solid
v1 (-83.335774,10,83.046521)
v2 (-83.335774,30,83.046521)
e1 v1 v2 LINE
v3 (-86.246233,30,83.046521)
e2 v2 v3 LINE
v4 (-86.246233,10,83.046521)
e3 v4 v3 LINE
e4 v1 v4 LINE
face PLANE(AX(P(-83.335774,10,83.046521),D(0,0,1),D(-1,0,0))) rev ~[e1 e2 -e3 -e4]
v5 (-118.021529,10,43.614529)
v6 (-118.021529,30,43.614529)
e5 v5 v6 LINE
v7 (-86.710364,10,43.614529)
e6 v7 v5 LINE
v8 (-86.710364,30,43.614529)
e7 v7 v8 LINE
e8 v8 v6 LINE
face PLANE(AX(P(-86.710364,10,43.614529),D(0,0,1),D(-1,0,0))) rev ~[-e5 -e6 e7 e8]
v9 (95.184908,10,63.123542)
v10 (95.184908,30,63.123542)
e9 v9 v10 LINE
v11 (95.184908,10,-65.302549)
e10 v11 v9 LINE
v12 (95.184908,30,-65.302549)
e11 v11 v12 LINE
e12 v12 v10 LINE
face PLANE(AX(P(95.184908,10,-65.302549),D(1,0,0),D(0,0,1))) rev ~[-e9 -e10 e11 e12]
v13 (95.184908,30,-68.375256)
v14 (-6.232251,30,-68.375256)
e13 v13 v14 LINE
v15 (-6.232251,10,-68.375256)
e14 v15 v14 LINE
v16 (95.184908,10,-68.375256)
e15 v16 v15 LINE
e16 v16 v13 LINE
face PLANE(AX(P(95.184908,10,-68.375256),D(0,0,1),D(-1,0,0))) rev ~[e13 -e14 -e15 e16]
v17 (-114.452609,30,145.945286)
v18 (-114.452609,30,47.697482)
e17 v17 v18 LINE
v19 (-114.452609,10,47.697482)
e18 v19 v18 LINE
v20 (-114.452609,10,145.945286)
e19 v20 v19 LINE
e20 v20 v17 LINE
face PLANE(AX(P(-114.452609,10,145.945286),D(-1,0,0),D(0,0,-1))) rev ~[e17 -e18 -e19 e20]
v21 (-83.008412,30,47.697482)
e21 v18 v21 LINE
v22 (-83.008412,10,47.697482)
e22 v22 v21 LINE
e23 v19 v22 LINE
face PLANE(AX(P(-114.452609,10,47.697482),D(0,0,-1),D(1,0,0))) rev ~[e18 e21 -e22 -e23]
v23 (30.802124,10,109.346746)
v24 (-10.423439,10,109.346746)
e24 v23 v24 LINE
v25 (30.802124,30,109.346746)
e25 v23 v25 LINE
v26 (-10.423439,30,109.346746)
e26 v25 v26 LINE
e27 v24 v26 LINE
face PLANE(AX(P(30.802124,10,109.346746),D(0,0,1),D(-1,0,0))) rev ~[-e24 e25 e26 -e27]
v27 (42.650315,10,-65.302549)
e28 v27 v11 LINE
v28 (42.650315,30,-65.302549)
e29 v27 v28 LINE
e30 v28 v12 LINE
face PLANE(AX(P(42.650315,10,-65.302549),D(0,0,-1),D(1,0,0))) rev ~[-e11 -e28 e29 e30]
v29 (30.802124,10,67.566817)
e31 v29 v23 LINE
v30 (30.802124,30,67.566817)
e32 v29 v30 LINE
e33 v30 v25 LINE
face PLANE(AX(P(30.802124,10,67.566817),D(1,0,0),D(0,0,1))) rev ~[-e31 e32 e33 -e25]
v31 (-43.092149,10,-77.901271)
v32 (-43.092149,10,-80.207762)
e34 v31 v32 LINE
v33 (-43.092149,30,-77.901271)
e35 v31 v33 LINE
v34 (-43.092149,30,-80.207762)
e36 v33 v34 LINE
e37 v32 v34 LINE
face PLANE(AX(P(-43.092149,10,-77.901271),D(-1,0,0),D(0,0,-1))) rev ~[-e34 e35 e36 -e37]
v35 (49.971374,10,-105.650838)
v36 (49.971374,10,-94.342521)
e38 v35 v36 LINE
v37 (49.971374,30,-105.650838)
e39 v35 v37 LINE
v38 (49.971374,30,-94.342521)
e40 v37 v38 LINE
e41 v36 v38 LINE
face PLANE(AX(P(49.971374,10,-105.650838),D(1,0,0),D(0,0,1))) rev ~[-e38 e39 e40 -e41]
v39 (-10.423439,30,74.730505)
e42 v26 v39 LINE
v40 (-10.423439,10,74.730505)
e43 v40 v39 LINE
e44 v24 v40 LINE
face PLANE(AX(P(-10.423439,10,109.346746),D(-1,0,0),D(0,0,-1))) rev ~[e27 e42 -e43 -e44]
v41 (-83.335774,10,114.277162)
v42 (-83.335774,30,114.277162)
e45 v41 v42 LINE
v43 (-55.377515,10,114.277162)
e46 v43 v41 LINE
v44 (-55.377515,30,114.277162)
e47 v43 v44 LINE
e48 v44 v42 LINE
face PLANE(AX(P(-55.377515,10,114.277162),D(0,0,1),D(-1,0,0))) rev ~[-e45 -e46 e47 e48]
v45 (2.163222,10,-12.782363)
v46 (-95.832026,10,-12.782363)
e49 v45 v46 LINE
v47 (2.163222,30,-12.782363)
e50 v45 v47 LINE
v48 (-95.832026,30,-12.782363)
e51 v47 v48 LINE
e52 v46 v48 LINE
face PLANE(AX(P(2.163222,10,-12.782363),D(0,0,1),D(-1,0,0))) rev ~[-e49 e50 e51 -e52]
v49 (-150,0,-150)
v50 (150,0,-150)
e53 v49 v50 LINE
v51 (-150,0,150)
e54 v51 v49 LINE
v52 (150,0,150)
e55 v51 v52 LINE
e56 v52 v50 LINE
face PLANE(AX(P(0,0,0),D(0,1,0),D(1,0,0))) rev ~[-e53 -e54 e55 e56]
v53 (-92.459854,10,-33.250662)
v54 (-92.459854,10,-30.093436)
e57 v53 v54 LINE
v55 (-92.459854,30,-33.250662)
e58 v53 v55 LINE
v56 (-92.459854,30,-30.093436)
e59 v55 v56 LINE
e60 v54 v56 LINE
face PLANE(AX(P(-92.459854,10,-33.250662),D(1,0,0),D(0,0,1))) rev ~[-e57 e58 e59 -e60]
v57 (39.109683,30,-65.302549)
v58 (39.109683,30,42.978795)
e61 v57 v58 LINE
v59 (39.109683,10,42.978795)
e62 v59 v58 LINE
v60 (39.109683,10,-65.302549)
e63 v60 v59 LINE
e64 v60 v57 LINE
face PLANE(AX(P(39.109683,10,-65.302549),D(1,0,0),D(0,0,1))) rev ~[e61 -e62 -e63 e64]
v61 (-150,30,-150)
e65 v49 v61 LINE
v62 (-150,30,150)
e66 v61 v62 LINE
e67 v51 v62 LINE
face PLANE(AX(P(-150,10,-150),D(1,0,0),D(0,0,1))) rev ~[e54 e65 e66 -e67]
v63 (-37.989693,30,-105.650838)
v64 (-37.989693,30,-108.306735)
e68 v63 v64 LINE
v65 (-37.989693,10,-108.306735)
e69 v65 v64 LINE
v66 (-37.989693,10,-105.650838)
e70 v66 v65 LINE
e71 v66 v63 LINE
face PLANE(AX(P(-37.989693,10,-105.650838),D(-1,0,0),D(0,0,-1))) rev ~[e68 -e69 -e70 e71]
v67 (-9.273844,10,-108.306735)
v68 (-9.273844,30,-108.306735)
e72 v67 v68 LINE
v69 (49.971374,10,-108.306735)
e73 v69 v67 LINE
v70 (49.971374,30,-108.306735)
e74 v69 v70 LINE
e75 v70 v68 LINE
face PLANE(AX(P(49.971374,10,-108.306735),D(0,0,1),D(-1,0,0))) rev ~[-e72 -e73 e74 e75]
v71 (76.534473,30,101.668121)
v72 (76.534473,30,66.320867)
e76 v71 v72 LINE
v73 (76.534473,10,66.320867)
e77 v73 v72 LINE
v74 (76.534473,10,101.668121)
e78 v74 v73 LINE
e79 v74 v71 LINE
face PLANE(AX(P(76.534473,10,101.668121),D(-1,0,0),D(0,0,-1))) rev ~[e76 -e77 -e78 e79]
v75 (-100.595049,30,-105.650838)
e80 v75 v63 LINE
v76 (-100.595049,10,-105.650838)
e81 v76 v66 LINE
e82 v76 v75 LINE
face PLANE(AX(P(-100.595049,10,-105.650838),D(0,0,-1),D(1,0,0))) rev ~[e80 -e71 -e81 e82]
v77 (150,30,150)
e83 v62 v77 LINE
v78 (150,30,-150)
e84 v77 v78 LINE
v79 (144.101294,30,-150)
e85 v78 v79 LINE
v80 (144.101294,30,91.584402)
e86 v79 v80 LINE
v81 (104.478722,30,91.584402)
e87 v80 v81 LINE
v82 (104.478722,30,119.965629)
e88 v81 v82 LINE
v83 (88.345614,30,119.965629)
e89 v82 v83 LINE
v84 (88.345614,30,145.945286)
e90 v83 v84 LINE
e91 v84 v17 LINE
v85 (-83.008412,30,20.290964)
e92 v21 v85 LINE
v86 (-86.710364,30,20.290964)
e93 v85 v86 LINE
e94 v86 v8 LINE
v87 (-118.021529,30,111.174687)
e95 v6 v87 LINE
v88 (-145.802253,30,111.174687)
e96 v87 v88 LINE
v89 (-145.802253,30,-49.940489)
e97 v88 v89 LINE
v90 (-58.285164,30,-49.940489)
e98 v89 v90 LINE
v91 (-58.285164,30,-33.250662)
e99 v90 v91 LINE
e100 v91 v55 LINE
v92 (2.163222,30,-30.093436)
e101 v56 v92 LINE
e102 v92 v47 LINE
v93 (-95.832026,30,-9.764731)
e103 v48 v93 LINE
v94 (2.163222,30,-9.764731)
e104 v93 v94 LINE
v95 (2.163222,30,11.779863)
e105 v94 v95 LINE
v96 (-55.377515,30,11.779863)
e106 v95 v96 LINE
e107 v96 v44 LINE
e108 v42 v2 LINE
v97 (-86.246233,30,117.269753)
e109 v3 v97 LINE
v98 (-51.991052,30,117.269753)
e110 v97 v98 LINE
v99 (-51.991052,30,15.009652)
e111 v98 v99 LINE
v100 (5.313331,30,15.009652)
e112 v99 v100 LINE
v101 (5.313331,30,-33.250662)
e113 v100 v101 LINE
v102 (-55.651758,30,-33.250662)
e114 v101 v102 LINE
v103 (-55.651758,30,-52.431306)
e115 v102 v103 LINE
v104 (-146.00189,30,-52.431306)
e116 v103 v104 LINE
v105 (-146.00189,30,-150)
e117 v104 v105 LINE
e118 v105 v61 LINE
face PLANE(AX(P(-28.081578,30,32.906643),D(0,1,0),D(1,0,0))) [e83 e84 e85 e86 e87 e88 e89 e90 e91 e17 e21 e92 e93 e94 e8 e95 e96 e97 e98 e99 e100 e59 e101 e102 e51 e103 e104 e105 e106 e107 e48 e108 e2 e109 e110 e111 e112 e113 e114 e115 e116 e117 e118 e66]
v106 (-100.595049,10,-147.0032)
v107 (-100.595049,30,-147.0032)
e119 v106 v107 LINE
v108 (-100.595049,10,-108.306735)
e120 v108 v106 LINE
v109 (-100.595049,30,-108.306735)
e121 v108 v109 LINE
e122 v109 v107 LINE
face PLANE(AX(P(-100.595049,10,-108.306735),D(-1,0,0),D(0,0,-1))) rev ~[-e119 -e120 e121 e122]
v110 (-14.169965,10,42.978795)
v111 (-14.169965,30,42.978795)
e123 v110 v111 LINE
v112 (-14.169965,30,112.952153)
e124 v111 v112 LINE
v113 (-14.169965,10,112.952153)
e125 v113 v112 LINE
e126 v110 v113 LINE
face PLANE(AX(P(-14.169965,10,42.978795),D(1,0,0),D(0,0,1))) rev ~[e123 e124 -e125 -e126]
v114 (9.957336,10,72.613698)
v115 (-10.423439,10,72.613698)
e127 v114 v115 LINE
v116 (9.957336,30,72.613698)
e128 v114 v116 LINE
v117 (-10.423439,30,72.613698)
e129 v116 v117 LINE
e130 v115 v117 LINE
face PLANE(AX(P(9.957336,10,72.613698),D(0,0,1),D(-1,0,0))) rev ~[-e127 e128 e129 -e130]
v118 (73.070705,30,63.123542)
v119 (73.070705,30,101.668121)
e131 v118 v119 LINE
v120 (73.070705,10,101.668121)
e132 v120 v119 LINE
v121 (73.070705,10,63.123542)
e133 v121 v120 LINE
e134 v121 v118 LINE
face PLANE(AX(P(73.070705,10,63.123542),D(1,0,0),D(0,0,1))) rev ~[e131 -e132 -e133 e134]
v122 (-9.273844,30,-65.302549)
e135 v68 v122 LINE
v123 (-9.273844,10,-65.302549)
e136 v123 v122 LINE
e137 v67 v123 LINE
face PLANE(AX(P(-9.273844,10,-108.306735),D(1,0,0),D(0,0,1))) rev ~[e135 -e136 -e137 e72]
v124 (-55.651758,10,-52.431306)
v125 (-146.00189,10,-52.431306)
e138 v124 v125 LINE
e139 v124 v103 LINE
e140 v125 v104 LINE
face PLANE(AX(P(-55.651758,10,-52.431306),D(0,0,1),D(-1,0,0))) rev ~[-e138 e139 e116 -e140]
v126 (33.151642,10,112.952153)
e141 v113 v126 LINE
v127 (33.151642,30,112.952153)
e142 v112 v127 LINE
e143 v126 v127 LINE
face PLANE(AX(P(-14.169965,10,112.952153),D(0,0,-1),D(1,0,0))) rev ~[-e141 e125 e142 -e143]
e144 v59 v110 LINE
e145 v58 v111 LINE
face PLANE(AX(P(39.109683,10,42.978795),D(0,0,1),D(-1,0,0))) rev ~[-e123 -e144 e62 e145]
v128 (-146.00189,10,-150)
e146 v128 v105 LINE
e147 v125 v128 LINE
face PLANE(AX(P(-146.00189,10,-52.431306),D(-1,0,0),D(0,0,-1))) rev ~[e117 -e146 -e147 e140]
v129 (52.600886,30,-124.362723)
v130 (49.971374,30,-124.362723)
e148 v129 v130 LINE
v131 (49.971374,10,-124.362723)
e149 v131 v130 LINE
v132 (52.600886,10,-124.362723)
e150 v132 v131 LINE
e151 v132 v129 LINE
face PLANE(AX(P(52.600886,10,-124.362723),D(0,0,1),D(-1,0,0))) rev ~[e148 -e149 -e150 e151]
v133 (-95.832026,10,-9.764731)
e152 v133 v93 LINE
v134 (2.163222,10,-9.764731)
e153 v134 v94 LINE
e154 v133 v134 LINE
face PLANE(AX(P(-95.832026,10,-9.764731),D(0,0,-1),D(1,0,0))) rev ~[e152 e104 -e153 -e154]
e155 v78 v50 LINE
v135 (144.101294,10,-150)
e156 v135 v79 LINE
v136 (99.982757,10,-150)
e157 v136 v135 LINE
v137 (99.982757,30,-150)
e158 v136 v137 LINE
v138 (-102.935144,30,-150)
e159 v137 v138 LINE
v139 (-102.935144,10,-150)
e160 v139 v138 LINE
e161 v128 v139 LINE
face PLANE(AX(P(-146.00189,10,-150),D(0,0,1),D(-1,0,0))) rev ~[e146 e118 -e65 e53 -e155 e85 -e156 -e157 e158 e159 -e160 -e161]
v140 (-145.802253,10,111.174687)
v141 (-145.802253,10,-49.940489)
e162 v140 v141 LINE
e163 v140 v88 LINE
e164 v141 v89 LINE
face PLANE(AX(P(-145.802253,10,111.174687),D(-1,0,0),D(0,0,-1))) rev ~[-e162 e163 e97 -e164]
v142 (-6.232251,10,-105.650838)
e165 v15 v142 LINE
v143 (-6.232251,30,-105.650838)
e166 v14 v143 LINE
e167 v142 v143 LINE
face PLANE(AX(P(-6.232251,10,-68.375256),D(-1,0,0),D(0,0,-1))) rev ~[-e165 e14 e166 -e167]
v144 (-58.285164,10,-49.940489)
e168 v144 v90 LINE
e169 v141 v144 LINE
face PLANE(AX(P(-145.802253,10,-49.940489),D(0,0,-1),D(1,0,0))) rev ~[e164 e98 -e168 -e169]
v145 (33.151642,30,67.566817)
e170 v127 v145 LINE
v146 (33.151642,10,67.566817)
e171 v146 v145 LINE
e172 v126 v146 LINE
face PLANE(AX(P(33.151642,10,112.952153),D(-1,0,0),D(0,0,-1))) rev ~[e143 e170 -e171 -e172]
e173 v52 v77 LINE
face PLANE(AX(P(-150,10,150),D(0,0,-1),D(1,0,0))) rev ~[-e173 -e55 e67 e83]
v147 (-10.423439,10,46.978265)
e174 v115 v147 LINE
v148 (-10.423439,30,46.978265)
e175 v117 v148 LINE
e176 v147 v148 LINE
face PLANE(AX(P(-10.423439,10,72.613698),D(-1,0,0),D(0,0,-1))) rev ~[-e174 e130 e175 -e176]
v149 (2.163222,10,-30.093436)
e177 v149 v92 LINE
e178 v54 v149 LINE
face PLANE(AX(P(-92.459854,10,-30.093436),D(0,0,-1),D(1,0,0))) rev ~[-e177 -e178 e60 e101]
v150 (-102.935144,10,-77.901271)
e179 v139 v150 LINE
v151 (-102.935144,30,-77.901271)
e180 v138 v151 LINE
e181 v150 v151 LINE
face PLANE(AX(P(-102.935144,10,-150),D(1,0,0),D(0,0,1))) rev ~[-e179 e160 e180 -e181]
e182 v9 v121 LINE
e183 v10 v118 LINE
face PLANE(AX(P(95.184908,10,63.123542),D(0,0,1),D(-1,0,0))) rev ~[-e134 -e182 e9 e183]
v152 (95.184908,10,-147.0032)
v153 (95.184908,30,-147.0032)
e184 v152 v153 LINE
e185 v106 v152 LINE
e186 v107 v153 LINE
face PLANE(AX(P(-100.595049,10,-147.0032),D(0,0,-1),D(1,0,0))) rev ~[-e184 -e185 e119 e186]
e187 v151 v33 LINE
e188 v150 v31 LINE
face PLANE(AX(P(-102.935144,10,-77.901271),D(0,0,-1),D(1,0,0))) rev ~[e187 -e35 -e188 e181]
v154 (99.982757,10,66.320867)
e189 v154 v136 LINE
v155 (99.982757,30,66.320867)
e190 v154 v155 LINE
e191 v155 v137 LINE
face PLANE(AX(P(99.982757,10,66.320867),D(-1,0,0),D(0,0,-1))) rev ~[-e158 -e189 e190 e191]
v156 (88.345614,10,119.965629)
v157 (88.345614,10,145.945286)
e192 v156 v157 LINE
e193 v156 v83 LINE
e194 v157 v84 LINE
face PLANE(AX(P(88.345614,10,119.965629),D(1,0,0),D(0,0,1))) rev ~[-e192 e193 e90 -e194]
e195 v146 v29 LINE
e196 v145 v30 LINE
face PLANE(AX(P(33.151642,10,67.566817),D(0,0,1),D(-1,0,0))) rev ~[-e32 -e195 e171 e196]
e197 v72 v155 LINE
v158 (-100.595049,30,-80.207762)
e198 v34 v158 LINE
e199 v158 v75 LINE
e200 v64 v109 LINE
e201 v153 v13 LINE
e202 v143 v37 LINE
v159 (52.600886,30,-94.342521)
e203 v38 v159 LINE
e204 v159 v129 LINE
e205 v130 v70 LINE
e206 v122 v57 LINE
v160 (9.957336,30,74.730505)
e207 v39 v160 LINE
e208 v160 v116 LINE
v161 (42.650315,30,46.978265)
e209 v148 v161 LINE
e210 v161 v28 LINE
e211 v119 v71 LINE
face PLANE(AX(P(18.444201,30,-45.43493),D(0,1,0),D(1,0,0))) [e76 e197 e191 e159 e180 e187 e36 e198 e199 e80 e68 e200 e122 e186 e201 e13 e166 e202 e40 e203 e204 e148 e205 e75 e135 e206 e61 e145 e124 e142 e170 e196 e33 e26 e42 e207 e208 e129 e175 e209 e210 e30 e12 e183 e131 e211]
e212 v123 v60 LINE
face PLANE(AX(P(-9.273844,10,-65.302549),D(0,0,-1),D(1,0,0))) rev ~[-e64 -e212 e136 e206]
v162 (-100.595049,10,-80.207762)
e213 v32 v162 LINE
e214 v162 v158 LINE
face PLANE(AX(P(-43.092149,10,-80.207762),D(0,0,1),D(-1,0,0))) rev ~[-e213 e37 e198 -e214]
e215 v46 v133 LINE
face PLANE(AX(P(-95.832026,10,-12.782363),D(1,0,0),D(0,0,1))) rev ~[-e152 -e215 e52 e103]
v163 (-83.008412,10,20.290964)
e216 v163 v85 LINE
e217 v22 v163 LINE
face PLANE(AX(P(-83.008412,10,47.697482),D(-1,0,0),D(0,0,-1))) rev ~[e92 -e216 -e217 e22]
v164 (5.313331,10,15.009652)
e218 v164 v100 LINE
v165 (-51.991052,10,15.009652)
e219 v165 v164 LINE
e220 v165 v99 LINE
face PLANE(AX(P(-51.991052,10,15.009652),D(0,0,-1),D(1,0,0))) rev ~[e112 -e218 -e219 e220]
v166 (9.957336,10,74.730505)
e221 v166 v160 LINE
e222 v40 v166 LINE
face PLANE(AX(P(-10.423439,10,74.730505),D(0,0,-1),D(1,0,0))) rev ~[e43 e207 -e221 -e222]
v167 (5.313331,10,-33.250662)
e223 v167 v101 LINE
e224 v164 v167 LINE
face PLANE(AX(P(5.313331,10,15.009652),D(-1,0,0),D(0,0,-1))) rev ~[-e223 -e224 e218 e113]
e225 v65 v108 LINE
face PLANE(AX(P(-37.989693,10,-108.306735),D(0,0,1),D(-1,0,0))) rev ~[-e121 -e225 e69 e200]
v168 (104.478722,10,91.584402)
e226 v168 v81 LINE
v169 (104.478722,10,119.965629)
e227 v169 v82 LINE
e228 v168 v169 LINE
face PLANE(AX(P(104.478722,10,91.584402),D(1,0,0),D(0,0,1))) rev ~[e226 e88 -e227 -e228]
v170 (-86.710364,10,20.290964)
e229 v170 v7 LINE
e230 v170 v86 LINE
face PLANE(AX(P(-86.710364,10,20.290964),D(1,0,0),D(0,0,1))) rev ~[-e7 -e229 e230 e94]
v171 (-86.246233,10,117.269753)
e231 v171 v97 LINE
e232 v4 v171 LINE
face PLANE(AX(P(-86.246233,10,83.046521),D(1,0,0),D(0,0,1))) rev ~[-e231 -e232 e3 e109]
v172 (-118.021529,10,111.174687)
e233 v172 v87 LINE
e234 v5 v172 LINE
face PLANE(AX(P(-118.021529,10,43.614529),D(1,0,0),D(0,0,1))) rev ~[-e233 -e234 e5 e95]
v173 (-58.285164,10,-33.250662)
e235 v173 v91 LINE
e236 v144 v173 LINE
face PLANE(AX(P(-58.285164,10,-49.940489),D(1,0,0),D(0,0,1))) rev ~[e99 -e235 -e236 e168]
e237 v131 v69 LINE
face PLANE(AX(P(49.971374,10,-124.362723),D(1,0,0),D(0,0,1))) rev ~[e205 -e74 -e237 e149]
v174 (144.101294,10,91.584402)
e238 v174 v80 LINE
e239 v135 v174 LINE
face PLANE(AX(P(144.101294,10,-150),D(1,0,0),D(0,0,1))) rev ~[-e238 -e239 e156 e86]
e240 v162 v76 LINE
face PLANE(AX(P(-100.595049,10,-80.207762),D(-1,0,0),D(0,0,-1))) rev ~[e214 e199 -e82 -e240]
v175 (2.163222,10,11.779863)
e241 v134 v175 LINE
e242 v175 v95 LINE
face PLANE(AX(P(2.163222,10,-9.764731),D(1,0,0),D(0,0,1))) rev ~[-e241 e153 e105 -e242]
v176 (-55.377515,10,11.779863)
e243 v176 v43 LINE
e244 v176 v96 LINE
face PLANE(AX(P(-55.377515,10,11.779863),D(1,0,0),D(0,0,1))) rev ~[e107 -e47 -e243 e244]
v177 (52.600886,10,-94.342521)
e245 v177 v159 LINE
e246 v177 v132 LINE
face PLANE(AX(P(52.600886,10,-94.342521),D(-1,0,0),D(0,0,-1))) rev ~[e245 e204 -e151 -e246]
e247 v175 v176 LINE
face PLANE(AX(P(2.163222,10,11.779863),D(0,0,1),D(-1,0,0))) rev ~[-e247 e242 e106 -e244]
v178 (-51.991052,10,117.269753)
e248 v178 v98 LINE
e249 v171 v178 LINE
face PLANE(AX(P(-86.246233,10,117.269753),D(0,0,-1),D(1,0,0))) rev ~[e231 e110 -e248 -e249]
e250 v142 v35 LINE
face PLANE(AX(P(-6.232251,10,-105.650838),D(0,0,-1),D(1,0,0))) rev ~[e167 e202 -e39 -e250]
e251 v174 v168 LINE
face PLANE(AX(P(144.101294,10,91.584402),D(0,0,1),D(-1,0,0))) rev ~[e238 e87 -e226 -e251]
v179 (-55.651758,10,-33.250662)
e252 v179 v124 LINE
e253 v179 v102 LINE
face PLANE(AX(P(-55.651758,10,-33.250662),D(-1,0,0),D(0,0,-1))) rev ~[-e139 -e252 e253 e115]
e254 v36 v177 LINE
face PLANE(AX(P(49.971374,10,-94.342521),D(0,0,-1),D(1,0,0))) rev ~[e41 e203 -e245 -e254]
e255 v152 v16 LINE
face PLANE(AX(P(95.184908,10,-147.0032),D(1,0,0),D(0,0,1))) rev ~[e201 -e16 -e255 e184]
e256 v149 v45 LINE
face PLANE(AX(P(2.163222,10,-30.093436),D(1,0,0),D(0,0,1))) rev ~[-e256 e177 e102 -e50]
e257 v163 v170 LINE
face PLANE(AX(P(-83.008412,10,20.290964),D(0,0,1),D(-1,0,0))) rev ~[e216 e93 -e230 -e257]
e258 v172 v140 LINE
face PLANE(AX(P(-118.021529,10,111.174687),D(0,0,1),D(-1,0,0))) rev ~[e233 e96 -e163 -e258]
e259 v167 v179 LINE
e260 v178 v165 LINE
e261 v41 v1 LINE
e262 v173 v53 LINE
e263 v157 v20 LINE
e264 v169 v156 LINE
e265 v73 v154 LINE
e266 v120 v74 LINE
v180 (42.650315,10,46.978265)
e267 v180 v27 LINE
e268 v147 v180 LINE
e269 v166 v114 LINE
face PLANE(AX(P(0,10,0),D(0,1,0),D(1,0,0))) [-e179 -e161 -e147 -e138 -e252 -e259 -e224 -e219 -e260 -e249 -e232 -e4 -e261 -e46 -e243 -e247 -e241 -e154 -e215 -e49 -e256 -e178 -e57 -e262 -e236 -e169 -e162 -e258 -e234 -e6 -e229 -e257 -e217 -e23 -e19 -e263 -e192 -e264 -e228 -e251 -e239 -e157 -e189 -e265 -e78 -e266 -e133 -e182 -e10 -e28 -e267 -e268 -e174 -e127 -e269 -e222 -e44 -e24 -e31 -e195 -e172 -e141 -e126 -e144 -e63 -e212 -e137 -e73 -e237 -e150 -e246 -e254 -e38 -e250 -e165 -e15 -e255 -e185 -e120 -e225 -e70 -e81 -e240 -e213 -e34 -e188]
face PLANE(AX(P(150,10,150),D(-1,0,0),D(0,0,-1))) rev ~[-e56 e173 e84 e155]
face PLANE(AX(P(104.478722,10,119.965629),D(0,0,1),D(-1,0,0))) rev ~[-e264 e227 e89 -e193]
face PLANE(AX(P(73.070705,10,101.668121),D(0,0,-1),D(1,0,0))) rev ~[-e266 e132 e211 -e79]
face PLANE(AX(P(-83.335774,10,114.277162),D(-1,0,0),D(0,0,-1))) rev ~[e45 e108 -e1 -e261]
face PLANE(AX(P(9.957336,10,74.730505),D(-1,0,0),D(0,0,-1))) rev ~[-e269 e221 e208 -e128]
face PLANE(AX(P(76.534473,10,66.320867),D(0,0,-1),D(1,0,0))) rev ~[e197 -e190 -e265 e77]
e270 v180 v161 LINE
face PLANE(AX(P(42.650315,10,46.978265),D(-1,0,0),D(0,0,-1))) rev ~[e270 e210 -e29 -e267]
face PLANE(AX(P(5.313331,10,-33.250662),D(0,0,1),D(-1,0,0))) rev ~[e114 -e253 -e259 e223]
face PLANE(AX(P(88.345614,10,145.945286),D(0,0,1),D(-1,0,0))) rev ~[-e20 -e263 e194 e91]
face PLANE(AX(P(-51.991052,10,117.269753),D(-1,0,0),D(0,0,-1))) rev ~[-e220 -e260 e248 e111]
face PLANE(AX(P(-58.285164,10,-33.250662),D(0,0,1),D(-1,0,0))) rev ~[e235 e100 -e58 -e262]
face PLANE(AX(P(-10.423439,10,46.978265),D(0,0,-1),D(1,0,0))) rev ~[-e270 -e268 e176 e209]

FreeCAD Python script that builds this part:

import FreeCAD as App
import Part
import Sketcher
Q = App.Units.Quantity

doc = App.newDocument("Part")
params = doc.addObject("Spreadsheet::Sheet", "Params")
for row, (alias, value) in enumerate([
    ("sketch1_width", "300 mm"),
    ("pad1_length", "10 mm"),
    ("sketch2_width", "300 mm"),
    ("pad2_length", "20 mm"),
], start=1):
    params.set(f"A{row}", alias)
    params.set(f"B{row}", "=" + value)
    params.setAlias(f"B{row}", alias)

body = doc.addObject("PartDesign::Body", "Body")

# Sketch on XZ plane
sketch1 = body.newObject("Sketcher::SketchObject", "Sketch")
sketch1.AttachmentSupport = (doc.getObject("XZ_Plane"), [""])
sketch1.MapMode = "FlatFace"
sketch1.addGeometry(Part.LineSegment(App.Vector(-150, -150, 0), App.Vector(-150, 150, 0)), False)
sketch1.addGeometry(Part.LineSegment(App.Vector(-150, 150, 0), App.Vector(150, 150, 0)), False)
sketch1.addGeometry(Part.LineSegment(App.Vector(150, 150, 0), App.Vector(150, -150, 0)), False)
sketch1.addGeometry(Part.LineSegment(App.Vector(150, -150, 0), App.Vector(-150, -150, 0)), False)
sketch1.addConstraint(Sketcher.Constraint("Coincident", 0, 2, 1, 1))
sketch1.addConstraint(Sketcher.Constraint("Coincident", 1, 2, 2, 1))
sketch1.addConstraint(Sketcher.Constraint("Coincident", 2, 2, 3, 1))
sketch1.addConstraint(Sketcher.Constraint("Coincident", 3, 2, 0, 1))
sketch1.addConstraint(Sketcher.Constraint("Vertical", 0))
sketch1.addConstraint(Sketcher.Constraint("Horizontal", 1))
sketch1.addConstraint(Sketcher.Constraint("Vertical", 2))
sketch1.addConstraint(Sketcher.Constraint("Horizontal", 3))
sketch1.addConstraint(Sketcher.Constraint("Symmetric", 0, 2, 2, 2, -1, 1))
sketch1.addConstraint(Sketcher.Constraint("Equal", 3, 0))
sketch1.addConstraint(Sketcher.Constraint("DistanceX", 1, 1, 1, 2, Q("300 mm")))
sketch1.setExpression("Constraints[10]", "Params.sketch1_width")
pad1 = body.newObject("PartDesign::Pad", "Pad")
pad1.Profile = sketch1
pad1.setExpression("Length", "Params.pad1_length")
pad1.Reversed = True

# Sketch on XZ plane
sketch2 = body.newObject("Sketcher::SketchObject", "Sketch001")
sketch2.AttachmentSupport = (doc.getObject("XZ_Plane"), [""])
sketch2.MapMode = "FlatFace"
sketch2.AttachmentOffset = App.Placement(App.Vector(0, 0, -10), App.Rotation())
sketch2.addGeometry(Part.LineSegment(App.Vector(50, -108.3, 0), App.Vector(-9.3, -108.3, 0)), False)
sketch2.addGeometry(Part.LineSegment(App.Vector(-9.3, -108.3, 0), App.Vector(-9.3, -65.3, 0)), False)
sketch2.addGeometry(Part.LineSegment(App.Vector(-9.3, -65.3, 0), App.Vector(39.1, -65.3, 0)), False)
sketch2.addGeometry(Part.LineSegment(App.Vector(39.1, -65.3, 0), App.Vector(39.1, 43, 0)), False)
sketch2.addGeometry(Part.LineSegment(App.Vector(39.1, 43, 0), App.Vector(-14.2, 43, 0)), False)
sketch2.addGeometry(Part.LineSegment(App.Vector(-14.2, 43, 0), App.Vector(-14.2, 113, 0)), False)
sketch2.addGeometry(Part.LineSegment(App.Vector(-14.2, 113, 0), App.Vector(33.2, 113, 0)), False)
sketch2.addGeometry(Part.LineSegment(App.Vector(33.2, 113, 0), App.Vector(33.2, 67.6, 0)), False)
sketch2.addGeometry(Part.LineSegment(App.Vector(33.2, 67.6, 0), App.Vector(30.8, 67.6, 0)), False)
sketch2.addGeometry(Part.LineSegment(App.Vector(30.8, 67.6, 0), App.Vector(30.8, 109.3, 0)), False)
sketch2.addGeometry(Part.LineSegment(App.Vector(30.8, 109.3, 0), App.Vector(-10.4, 109.3, 0)), False)
sketch2.addGeometry(Part.LineSegment(App.Vector(-10.4, 109.3, 0), App.Vector(-10.4, 74.7, 0)), False)
sketch2.addGeometry(Part.LineSegment(App.Vector(-10.4, 74.7, 0), App.Vector(10, 74.7, 0)), False)
sketch2.addGeometry(Part.LineSegment(App.Vector(10, 74.7, 0), App.Vector(10, 72.6, 0)), False)
sketch2.addGeometry(Part.LineSegment(App.Vector(10, 72.6, 0), App.Vector(-10.4, 72.6, 0)), False)
sketch2.addGeometry(Part.LineSegment(App.Vector(-10.4, 72.6, 0), App.Vector(-10.4, 47, 0)), False)
sketch2.addGeometry(Part.LineSegment(App.Vector(-10.4, 47, 0), App.Vector(42.7, 47, 0)), False)
sketch2.addGeometry(Part.LineSegment(App.Vector(42.7, 47, 0), App.Vector(42.7, -65.3, 0)), False)
sketch2.addGeometry(Part.LineSegment(App.Vector(42.7, -65.3, 0), App.Vector(95.2, -65.3, 0)), False)
sketch2.addGeometry(Part.LineSegment(App.Vector(95.2, -65.3, 0), App.Vector(95.2, 63.1, 0)), False)
sketch2.addGeometry(Part.LineSegment(App.Vector(95.2, 63.1, 0), App.Vector(73.1, 63.1, 0)), False)
sketch2.addGeometry(Part.LineSegment(App.Vector(73.1, 63.1, 0), App.Vector(73.1, 101.7, 0)), False)
sketch2.addGeometry(Part.LineSegment(App.Vector(73.1, 101.7, 0), App.Vector(76.5, 101.7, 0)), False)
sketch2.addGeometry(Part.LineSegment(App.Vector(76.5, 101.7, 0), App.Vector(76.5, 66.3, 0)), False)
sketch2.addGeometry(Part.LineSegment(App.Vector(76.5, 66.3, 0), App.Vector(100, 66.3, 0)), False)
sketch2.addGeometry(Part.LineSegment(App.Vector(100, 66.3, 0), App.Vector(100, -150, 0)), False)
sketch2.addGeometry(Part.LineSegment(App.Vector(100, -150, 0), App.Vector(-102.9, -150, 0)), False)
sketch2.addGeometry(Part.LineSegment(App.Vector(-102.9, -150, 0), App.Vector(-102.9, -77.9, 0)), False)
sketch2.addGeometry(Part.LineSegment(App.Vector(-102.9, -77.9, 0), App.Vector(-43.1, -77.9, 0)), False)
sketch2.addGeometry(Part.LineSegment(App.Vector(-43.1, -77.9, 0), App.Vector(-43.1, -80.2, 0)), False)
sketch2.addGeometry(Part.LineSegment(App.Vector(-43.1, -80.2, 0), App.Vector(-100.6, -80.2, 0)), False)
sketch2.addGeometry(Part.LineSegment(App.Vector(-100.6, -80.2, 0), App.Vector(-100.6, -105.7, 0)), False)
sketch2.addGeometry(Part.LineSegment(App.Vector(-100.6, -105.7, 0), App.Vector(-38, -105.7, 0)), False)
sketch2.addGeometry(Part.LineSegment(App.Vector(-38, -105.7, 0), App.Vector(-38, -108.3, 0)), False)
sketch2.addGeometry(Part.LineSegment(App.Vector(-38, -108.3, 0), App.Vector(-100.6, -108.3, 0)), False)
sketch2.addGeometry(Part.LineSegment(App.Vector(-100.6, -108.3, 0), App.Vector(-100.6, -147, 0)), False)
sketch2.addGeometry(Part.LineSegment(App.Vector(-100.6, -147, 0), App.Vector(95.2, -147, 0)), False)
sketch2.addGeometry(Part.LineSegment(App.Vector(95.2, -147, 0), App.Vector(95.2, -68.4, 0)), False)
sketch2.addGeometry(Part.LineSegment(App.Vector(95.2, -68.4, 0), App.Vector(-6.2, -68.4, 0)), False)
sketch2.addGeometry(Part.LineSegment(App.Vector(-6.2, -68.4, 0), App.Vector(-6.2, -105.7, 0)), False)
sketch2.addGeometry(Part.LineSegment(App.Vector(-6.2, -105.7, 0), App.Vector(50, -105.7, 0)), False)
sketch2.addGeometry(Part.LineSegment(App.Vector(50, -105.7, 0), App.Vector(50, -94.3, 0)), False)
sketch2.addGeometry(Part.LineSegment(App.Vector(50, -94.3, 0), App.Vector(52.6, -94.3, 0)), False)
sketch2.addGeometry(Part.LineSegment(App.Vector(52.6, -94.3, 0), App.Vector(52.6, -124.4, 0)), False)
sketch2.addGeometry(Part.LineSegment(App.Vector(52.6, -124.4, 0), App.Vector(50, -124.4, 0)), False)
sketch2.addGeometry(Part.LineSegment(App.Vector(50, -124.4, 0), App.Vector(50, -108.3, 0)), False)
sketch2.addGeometry(Part.LineSegment(App.Vector(-146, -52.4, 0), App.Vector(-146, -150, 0)), False)
sketch2.addGeometry(Part.LineSegment(App.Vector(-146, -150, 0), App.Vector(-150, -150, 0)), False)
sketch2.addGeometry(Part.LineSegment(App.Vector(-150, -150, 0), App.Vector(-150, 150, 0)), False)
sketch2.addGeometry(Part.LineSegment(App.Vector(-150, 150, 0), App.Vector(150, 150, 0)), False)
sketch2.addGeometry(Part.LineSegment(App.Vector(150, 150, 0), App.Vector(150, -150, 0)), False)
sketch2.addGeometry(Part.LineSegment(App.Vector(150, -150, 0), App.Vector(144.1, -150, 0)), False)
sketch2.addGeometry(Part.LineSegment(App.Vector(144.1, -150, 0), App.Vector(144.1, 91.6, 0)), False)
sketch2.addGeometry(Part.LineSegment(App.Vector(144.1, 91.6, 0), App.Vector(104.5, 91.6, 0)), False)
sketch2.addGeometry(Part.LineSegment(App.Vector(104.5, 91.6, 0), App.Vector(104.5, 120, 0)), False)
sketch2.addGeometry(Part.LineSegment(App.Vector(104.5, 120, 0), App.Vector(88.3, 120, 0)), False)
sketch2.addGeometry(Part.LineSegment(App.Vector(88.3, 120, 0), App.Vector(88.3, 145.9, 0)), False)
sketch2.addGeometry(Part.LineSegment(App.Vector(88.3, 145.9, 0), App.Vector(-114.5, 145.9, 0)), False)
sketch2.addGeometry(Part.LineSegment(App.Vector(-114.5, 145.9, 0), App.Vector(-114.5, 47.7, 0)), False)
sketch2.addGeometry(Part.LineSegment(App.Vector(-114.5, 47.7, 0), App.Vector(-83, 47.7, 0)), False)
sketch2.addGeometry(Part.LineSegment(App.Vector(-83, 47.7, 0), App.Vector(-83, 20.3, 0)), False)
sketch2.addGeometry(Part.LineSegment(App.Vector(-83, 20.3, 0), App.Vector(-86.7, 20.3, 0)), False)
sketch2.addGeometry(Part.LineSegment(App.Vector(-86.7, 20.3, 0), App.Vector(-86.7, 43.6, 0)), False)
sketch2.addGeometry(Part.LineSegment(App.Vector(-86.7, 43.6, 0), App.Vector(-118, 43.6, 0)), False)
sketch2.addGeometry(Part.LineSegment(App.Vector(-118, 43.6, 0), App.Vector(-118, 111.2, 0)), False)
sketch2.addGeometry(Part.LineSegment(App.Vector(-118, 111.2, 0), App.Vector(-145.8, 111.2, 0)), False)
sketch2.addGeometry(Part.LineSegment(App.Vector(-145.8, 111.2, 0), App.Vector(-145.8, -49.9, 0)), False)
sketch2.addGeometry(Part.LineSegment(App.Vector(-145.8, -49.9, 0), App.Vector(-58.3, -49.9, 0)), False)
sketch2.addGeometry(Part.LineSegment(App.Vector(-58.3, -49.9, 0), App.Vector(-58.3, -33.3, 0)), False)
sketch2.addGeometry(Part.LineSegment(App.Vector(-58.3, -33.3, 0), App.Vector(-92.5, -33.3, 0)), False)
sketch2.addGeometry(Part.LineSegment(App.Vector(-92.5, -33.3, 0), App.Vector(-92.5, -30.1, 0)), False)
sketch2.addGeometry(Part.LineSegment(App.Vector(-92.5, -30.1, 0), App.Vector(2.2, -30.1, 0)), False)
sketch2.addGeometry(Part.LineSegment(App.Vector(2.2, -30.1, 0), App.Vector(2.2, -12.8, 0)), False)
sketch2.addGeometry(Part.LineSegment(App.Vector(2.2, -12.8, 0), App.Vector(-95.8, -12.8, 0)), False)
sketch2.addGeometry(Part.LineSegment(App.Vector(-95.8, -12.8, 0), App.Vector(-95.8, -9.8, 0)), False)
sketch2.addGeometry(Part.LineSegment(App.Vector(-95.8, -9.8, 0), App.Vector(2.2, -9.8, 0)), False)
sketch2.addGeometry(Part.LineSegment(App.Vector(2.2, -9.8, 0), App.Vector(2.2, 11.8, 0)), False)
sketch2.addGeometry(Part.LineSegment(App.Vector(2.2, 11.8, 0), App.Vector(-55.4, 11.8, 0)), False)
sketch2.addGeometry(Part.LineSegment(App.Vector(-55.4, 11.8, 0), App.Vector(-55.4, 114.3, 0)), False)
sketch2.addGeometry(Part.LineSegment(App.Vector(-55.4, 114.3, 0), App.Vector(-83.3, 114.3, 0)), False)
sketch2.addGeometry(Part.LineSegment(App.Vector(-83.3, 114.3, 0), App.Vector(-83.3, 83, 0)), False)
sketch2.addGeometry(Part.LineSegment(App.Vector(-83.3, 83, 0), App.Vector(-86.2, 83, 0)), False)
sketch2.addGeometry(Part.LineSegment(App.Vector(-86.2, 83, 0), App.Vector(-86.2, 117.3, 0)), False)
sketch2.addGeometry(Part.LineSegment(App.Vector(-86.2, 117.3, 0), App.Vector(-52, 117.3, 0)), False)
sketch2.addGeometry(Part.LineSegment(App.Vector(-52, 117.3, 0), App.Vector(-52, 15, 0)), False)
sketch2.addGeometry(Part.LineSegment(App.Vector(-52, 15, 0), App.Vector(5.3, 15, 0)), False)
sketch2.addGeometry(Part.LineSegment(App.Vector(5.3, 15, 0), App.Vector(5.3, -33.3, 0)), False)
sketch2.addGeometry(Part.LineSegment(App.Vector(5.3, -33.3, 0), App.Vector(-55.7, -33.3, 0)), False)
sketch2.addGeometry(Part.LineSegment(App.Vector(-55.7, -33.3, 0), App.Vector(-55.7, -52.4, 0)), False)
sketch2.addGeometry(Part.LineSegment(App.Vector(-55.7, -52.4, 0), App.Vector(-146, -52.4, 0)), False)
sketch2.addConstraint(Sketcher.Constraint("Coincident", 0, 2, 1, 1))
sketch2.addConstraint(Sketcher.Constraint("Coincident", 1, 2, 2, 1))
sketch2.addConstraint(Sketcher.Constraint("Coincident", 2, 2, 3, 1))
sketch2.addConstraint(Sketcher.Constraint("Coincident", 3, 2, 4, 1))
sketch2.addConstraint(Sketcher.Constraint("Coincident", 4, 2, 5, 1))
sketch2.addConstraint(Sketcher.Constraint("Coincident", 5, 2, 6, 1))
sketch2.addConstraint(Sketcher.Constraint("Coincident", 6, 2, 7, 1))
sketch2.addConstraint(Sketcher.Constraint("Coincident", 7, 2, 8, 1))
sketch2.addConstraint(Sketcher.Constraint("Coincident", 8, 2, 9, 1))
sketch2.addConstraint(Sketcher.Constraint("Coincident", 9, 2, 10, 1))
sketch2.addConstraint(Sketcher.Constraint("Coincident", 10, 2, 11, 1))
sketch2.addConstraint(Sketcher.Constraint("Coincident", 11, 2, 12, 1))
sketch2.addConstraint(Sketcher.Constraint("Coincident", 12, 2, 13, 1))
sketch2.addConstraint(Sketcher.Constraint("Coincident", 13, 2, 14, 1))
sketch2.addConstraint(Sketcher.Constraint("Coincident", 14, 2, 15, 1))
sketch2.addConstraint(Sketcher.Constraint("Coincident", 15, 2, 16, 1))
sketch2.addConstraint(Sketcher.Constraint("Coincident", 16, 2, 17, 1))
sketch2.addConstraint(Sketcher.Constraint("Coincident", 17, 2, 18, 1))
sketch2.addConstraint(Sketcher.Constraint("Coincident", 18, 2, 19, 1))
sketch2.addConstraint(Sketcher.Constraint("Coincident", 19, 2, 20, 1))
sketch2.addConstraint(Sketcher.Constraint("Coincident", 20, 2, 21, 1))
sketch2.addConstraint(Sketcher.Constraint("Coincident", 21, 2, 22, 1))
sketch2.addConstraint(Sketcher.Constraint("Coincident", 22, 2, 23, 1))
sketch2.addConstraint(Sketcher.Constraint("Coincident", 23, 2, 24, 1))
sketch2.addConstraint(Sketcher.Constraint("Coincident", 24, 2, 25, 1))
sketch2.addConstraint(Sketcher.Constraint("Coincident", 25, 2, 26, 1))
sketch2.addConstraint(Sketcher.Constraint("Coincident", 26, 2, 27, 1))
sketch2.addConstraint(Sketcher.Constraint("Coincident", 27, 2, 28, 1))
sketch2.addConstraint(Sketcher.Constraint("Coincident", 28, 2, 29, 1))
sketch2.addConstraint(Sketcher.Constraint("Coincident", 29, 2, 30, 1))
sketch2.addConstraint(Sketcher.Constraint("Coincident", 30, 2, 31, 1))
sketch2.addConstraint(Sketcher.Constraint("Coincident", 31, 2, 32, 1))
sketch2.addConstraint(Sketcher.Constraint("Coincident", 32, 2, 33, 1))
sketch2.addConstraint(Sketcher.Constraint("Coincident", 33, 2, 34, 1))
sketch2.addConstraint(Sketcher.Constraint("Coincident", 34, 2, 35, 1))
sketch2.addConstraint(Sketcher.Constraint("Coincident", 35, 2, 36, 1))
sketch2.addConstraint(Sketcher.Constraint("Coincident", 36, 2, 37, 1))
sketch2.addConstraint(Sketcher.Constraint("Coincident", 37, 2, 38, 1))
sketch2.addConstraint(Sketcher.Constraint("Coincident", 38, 2, 39, 1))
sketch2.addConstraint(Sketcher.Constraint("Coincident", 39, 2, 40, 1))
sketch2.addConstraint(Sketcher.Constraint("Coincident", 40, 2, 41, 1))
sketch2.addConstraint(Sketcher.Constraint("Coincident", 41, 2, 42, 1))
sketch2.addConstraint(Sketcher.Constraint("Coincident", 42, 2, 43, 1))
sketch2.addConstraint(Sketcher.Constraint("Coincident", 43, 2, 44, 1))
sketch2.addConstraint(Sketcher.Constraint("Coincident", 44, 2, 45, 1))
sketch2.addConstraint(Sketcher.Constraint("Coincident", 45, 2, 0, 1))
sketch2.addConstraint(Sketcher.Constraint("Coincident", 46, 2, 47, 1))
sketch2.addConstraint(Sketcher.Constraint("Coincident", 47, 2, 48, 1))
sketch2.addConstraint(Sketcher.Constraint("Coincident", 48, 2, 49, 1))
sketch2.addConstraint(Sketcher.Constraint("Coincident", 49, 2, 50, 1))
sketch2.addConstraint(Sketcher.Constraint("Coincident", 50, 2, 51, 1))
sketch2.addConstraint(Sketcher.Constraint("Coincident", 51, 2, 52, 1))
sketch2.addConstraint(Sketcher.Constraint("Coincident", 52, 2, 53, 1))
sketch2.addConstraint(Sketcher.Constraint("Coincident", 53, 2, 54, 1))
sketch2.addConstraint(Sketcher.Constraint("Coincident", 54, 2, 55, 1))
sketch2.addConstraint(Sketcher.Constraint("Coincident", 55, 2, 56, 1))
sketch2.addConstraint(Sketcher.Constraint("Coincident", 56, 2, 57, 1))
sketch2.addConstraint(Sketcher.Constraint("Coincident", 57, 2, 58, 1))
sketch2.addConstraint(Sketcher.Constraint("Coincident", 58, 2, 59, 1))
sketch2.addConstraint(Sketcher.Constraint("Coincident", 59, 2, 60, 1))
sketch2.addConstraint(Sketcher.Constraint("Coincident", 60, 2, 61, 1))
sketch2.addConstraint(Sketcher.Constraint("Coincident", 61, 2, 62, 1))
sketch2.addConstraint(Sketcher.Constraint("Coincident", 62, 2, 63, 1))
sketch2.addConstraint(Sketcher.Constraint("Coincident", 63, 2, 64, 1))
sketch2.addConstraint(Sketcher.Constraint("Coincident", 64, 2, 65, 1))
sketch2.addConstraint(Sketcher.Constraint("Coincident", 65, 2, 66, 1))
sketch2.addConstraint(Sketcher.Constraint("Coincident", 66, 2, 67, 1))
sketch2.addConstraint(Sketcher.Constraint("Coincident", 67, 2, 68, 1))
sketch2.addConstraint(Sketcher.Constraint("Coincident", 68, 2, 69, 1))
sketch2.addConstraint(Sketcher.Constraint("Coincident", 69, 2, 70, 1))
sketch2.addConstraint(Sketcher.Constraint("Coincident", 70, 2, 71, 1))
sketch2.addConstraint(Sketcher.Constraint("Coincident", 71, 2, 72, 1))
sketch2.addConstraint(Sketcher.Constraint("Coincident", 72, 2, 73, 1))
sketch2.addConstraint(Sketcher.Constraint("Coincident", 73, 2, 74, 1))
sketch2.addConstraint(Sketcher.Constraint("Coincident", 74, 2, 75, 1))
sketch2.addConstraint(Sketcher.Constraint("Coincident", 75, 2, 76, 1))
sketch2.addConstraint(Sketcher.Constraint("Coincident", 76, 2, 77, 1))
sketch2.addConstraint(Sketcher.Constraint("Coincident", 77, 2, 78, 1))
sketch2.addConstraint(Sketcher.Constraint("Coincident", 78, 2, 79, 1))
sketch2.addConstraint(Sketcher.Constraint("Coincident", 79, 2, 80, 1))
sketch2.addConstraint(Sketcher.Constraint("Coincident", 80, 2, 81, 1))
sketch2.addConstraint(Sketcher.Constraint("Coincident", 81, 2, 82, 1))
sketch2.addConstraint(Sketcher.Constraint("Coincident", 82, 2, 83, 1))
sketch2.addConstraint(Sketcher.Constraint("Coincident", 83, 2, 84, 1))
sketch2.addConstraint(Sketcher.Constraint("Coincident", 84, 2, 85, 1))
sketch2.addConstraint(Sketcher.Constraint("Coincident", 85, 2, 86, 1))
sketch2.addConstraint(Sketcher.Constraint("Coincident", 86, 2, 87, 1))
sketch2.addConstraint(Sketcher.Constraint("Coincident", 87, 2, 88, 1))
sketch2.addConstraint(Sketcher.Constraint("Coincident", 88, 2, 89, 1))
sketch2.addConstraint(Sketcher.Constraint("Coincident", 89, 2, 46, 1))
sketch2.addConstraint(Sketcher.Constraint("Horizontal", 0))
sketch2.addConstraint(Sketcher.Constraint("Vertical", 1))
sketch2.addConstraint(Sketcher.Constraint("Horizontal", 2))
sketch2.addConstraint(Sketcher.Constraint("Vertical", 3))
sketch2.addConstraint(Sketcher.Constraint("Horizontal", 4))
sketch2.addConstraint(Sketcher.Constraint("Vertical", 5))
sketch2.addConstraint(Sketcher.Constraint("Horizontal", 6))
sketch2.addConstraint(Sketcher.Constraint("Vertical", 7))
sketch2.addConstraint(Sketcher.Constraint("Horizontal", 8))
sketch2.addConstraint(Sketcher.Constraint("Vertical", 9))
sketch2.addConstraint(Sketcher.Constraint("Horizontal", 10))
sketch2.addConstraint(Sketcher.Constraint("Vertical", 11))
sketch2.addConstraint(Sketcher.Constraint("Horizontal", 12))
sketch2.addConstraint(Sketcher.Constraint("Vertical", 13))
sketch2.addConstraint(Sketcher.Constraint("Horizontal", 14))
sketch2.addConstraint(Sketcher.Constraint("Vertical", 15))
sketch2.addConstraint(Sketcher.Constraint("Horizontal", 16))
sketch2.addConstraint(Sketcher.Constraint("Vertical", 17))
sketch2.addConstraint(Sketcher.Constraint("Horizontal", 18))
sketch2.addConstraint(Sketcher.Constraint("Vertical", 19))
sketch2.addConstraint(Sketcher.Constraint("Horizontal", 20))
sketch2.addConstraint(Sketcher.Constraint("Vertical", 21))
sketch2.addConstraint(Sketcher.Constraint("Horizontal", 22))
sketch2.addConstraint(Sketcher.Constraint("Vertical", 23))
sketch2.addConstraint(Sketcher.Constraint("Horizontal", 24))
sketch2.addConstraint(Sketcher.Constraint("Vertical", 25))
sketch2.addConstraint(Sketcher.Constraint("Horizontal", 26))
sketch2.addConstraint(Sketcher.Constraint("Vertical", 27))
sketch2.addConstraint(Sketcher.Constraint("Horizontal", 28))
sketch2.addConstraint(Sketcher.Constraint("Vertical", 29))
sketch2.addConstraint(Sketcher.Constraint("Horizontal", 30))
sketch2.addConstraint(Sketcher.Constraint("Vertical", 31))
sketch2.addConstraint(Sketcher.Constraint("Horizontal", 32))
sketch2.addConstraint(Sketcher.Constraint("Vertical", 33))
sketch2.addConstraint(Sketcher.Constraint("Horizontal", 34))
sketch2.addConstraint(Sketcher.Constraint("Vertical", 35))
sketch2.addConstraint(Sketcher.Constraint("Horizontal", 36))
sketch2.addConstraint(Sketcher.Constraint("Vertical", 37))
sketch2.addConstraint(Sketcher.Constraint("Horizontal", 38))
sketch2.addConstraint(Sketcher.Constraint("Vertical", 39))
sketch2.addConstraint(Sketcher.Constraint("Horizontal", 40))
sketch2.addConstraint(Sketcher.Constraint("Vertical", 41))
sketch2.addConstraint(Sketcher.Constraint("Horizontal", 42))
sketch2.addConstraint(Sketcher.Constraint("Vertical", 43))
sketch2.addConstraint(Sketcher.Constraint("Horizontal", 44))
sketch2.addConstraint(Sketcher.Constraint("Vertical", 45))
sketch2.addConstraint(Sketcher.Constraint("Vertical", 46))
sketch2.addConstraint(Sketcher.Constraint("Horizontal", 47))
sketch2.addConstraint(Sketcher.Constraint("Vertical", 48))
sketch2.addConstraint(Sketcher.Constraint("Horizontal", 49))
sketch2.addConstraint(Sketcher.Constraint("Vertical", 50))
sketch2.addConstraint(Sketcher.Constraint("Horizontal", 51))
sketch2.addConstraint(Sketcher.Constraint("Vertical", 52))
sketch2.addConstraint(Sketcher.Constraint("Horizontal", 53))
sketch2.addConstraint(Sketcher.Constraint("Vertical", 54))
sketch2.addConstraint(Sketcher.Constraint("Horizontal", 55))
sketch2.addConstraint(Sketcher.Constraint("Vertical", 56))
sketch2.addConstraint(Sketcher.Constraint("Horizontal", 57))
sketch2.addConstraint(Sketcher.Constraint("Vertical", 58))
sketch2.addConstraint(Sketcher.Constraint("Horizontal", 59))
sketch2.addConstraint(Sketcher.Constraint("Vertical", 60))
sketch2.addConstraint(Sketcher.Constraint("Horizontal", 61))
sketch2.addConstraint(Sketcher.Constraint("Vertical", 62))
sketch2.addConstraint(Sketcher.Constraint("Horizontal", 63))
sketch2.addConstraint(Sketcher.Constraint("Vertical", 64))
sketch2.addConstraint(Sketcher.Constraint("Horizontal", 65))
sketch2.addConstraint(Sketcher.Constraint("Vertical", 66))
sketch2.addConstraint(Sketcher.Constraint("Horizontal", 67))
sketch2.addConstraint(Sketcher.Constraint("Vertical", 68))
sketch2.addConstraint(Sketcher.Constraint("Horizontal", 69))
sketch2.addConstraint(Sketcher.Constraint("Vertical", 70))
sketch2.addConstraint(Sketcher.Constraint("Horizontal", 71))
sketch2.addConstraint(Sketcher.Constraint("Vertical", 72))
sketch2.addConstraint(Sketcher.Constraint("Horizontal", 73))
sketch2.addConstraint(Sketcher.Constraint("Vertical", 74))
sketch2.addConstraint(Sketcher.Constraint("Horizontal", 75))
sketch2.addConstraint(Sketcher.Constraint("Vertical", 76))
sketch2.addConstraint(Sketcher.Constraint("Horizontal", 77))
sketch2.addConstraint(Sketcher.Constraint("Vertical", 78))
sketch2.addConstraint(Sketcher.Constraint("Horizontal", 79))
sketch2.addConstraint(Sketcher.Constraint("Vertical", 80))
sketch2.addConstraint(Sketcher.Constraint("Horizontal", 81))
sketch2.addConstraint(Sketcher.Constraint("Vertical", 82))
sketch2.addConstraint(Sketcher.Constraint("Horizontal", 83))
sketch2.addConstraint(Sketcher.Constraint("Vertical", 84))
sketch2.addConstraint(Sketcher.Constraint("Horizontal", 85))
sketch2.addConstraint(Sketcher.Constraint("Vertical", 86))
sketch2.addConstraint(Sketcher.Constraint("Horizontal", 87))
sketch2.addConstraint(Sketcher.Constraint("Vertical", 88))
sketch2.addConstraint(Sketcher.Constraint("Horizontal", 89))
sketch2.addConstraint(Sketcher.Constraint("Symmetric", 47, 2, 49, 2, -1, 1))
sketch2.addConstraint(Sketcher.Constraint("Horizontal", 2, 2, 17, 2))
sketch2.addConstraint(Sketcher.Constraint("Horizontal", 0, 2, 33, 2))
sketch2.addConstraint(Sketcher.Constraint("Horizontal", 32, 2, 39, 2))
sketch2.addConstraint(Sketcher.Constraint("Horizontal", 26, 2, 46, 2))
sketch2.addConstraint(Sketcher.Constraint("Horizontal", 47, 2, 50, 2))
sketch2.addConstraint(Sketcher.Constraint("Horizontal", 69, 2, 86, 2))
sketch2.addConstraint(Sketcher.Constraint("Vertical", 11, 2, 14, 2))
sketch2.addConstraint(Sketcher.Constraint("Vertical", 31, 2, 34, 2))
sketch2.addConstraint(Sketcher.Constraint("Vertical", 19, 2, 36, 2))
sketch2.addConstraint(Sketcher.Constraint("Vertical", 41, 2, 44, 2))
sketch2.addConstraint(Sketcher.Constraint("Vertical", 72, 2, 75, 2))
sketch2.addConstraint(Sketcher.Constraint("Equal", 49, 48))
sketch2.addConstraint(Sketcher.Constraint("DistanceX", 49, 1, 49, 2, Q("300 mm")))
sketch2.addConstraint(Sketcher.Constraint("DistanceX", 26, 2, 26, 1, Q("202.917902 mm")))
sketch2.addConstraint(Sketcher.Constraint("DistanceX", 30, 2, 30, 1, Q("57.5029 mm")))
sketch2.addConstraint(Sketcher.Constraint("DistanceY", 43, 2, 43, 1, Q("30.020202 mm")))
sketch2.addConstraint(Sketcher.Constraint("DistanceY", 78, 1, 78, 2, Q("102.497299 mm")))
sketch2.addConstraint(Sketcher.Constraint("DistanceY", 84, 2, 84, 1, Q("102.260101 mm")))
sketch2.addConstraint(Sketcher.Constraint("DistanceX", 0, 2, 0, 1, Q("59.245218 mm")))
sketch2.addConstraint(Sketcher.Constraint("DistanceX", 22, 1, 22, 2, Q("3.463768 mm")))
sketch2.addConstraint(Sketcher.Constraint("DistanceX", 38, 2, 38, 1, Q("101.417159 mm")))
sketch2.addConstraint(Sketcher.Constraint("DistanceX", 42, 1, 42, 2, Q("2.629512 mm")))
sketch2.addConstraint(Sketcher.Constraint("DistanceX", 47, 2, 47, 1, Q("3.99811 mm")))
sketch2.addConstraint(Sketcher.Constraint("DistanceX", 67, 1, 67, 2, Q("87.517089 mm")))
sketch2.addConstraint(Sketcher.Constraint("DistanceX", 69, 2, 69, 1, Q("34.17469 mm")))
sketch2.addConstraint(Sketcher.Constraint("DistanceX", 79, 2, 79, 1, Q("27.958258 mm")))
sketch2.addConstraint(Sketcher.Constraint("DistanceX", 81, 2, 81, 1, Q("2.910459 mm")))
sketch2.addConstraint(Sketcher.Constraint("DistanceX", 83, 1, 83, 2, Q("34.255181 mm")))
sketch2.addConstraint(Sketcher.Constraint("DistanceX", 87, 2, 87, 1, Q("60.96509 mm")))
sketch2.addConstraint(Sketcher.Constraint("DistanceX", 89, 2, 89, 1, Q("90.350132 mm")))
sketch2.addConstraint(Sketcher.Constraint("DistanceY", 5, 1, 5, 2, Q("69.973358 mm")))
sketch2.addConstraint(Sketcher.Constraint("DistanceY", 9, 1, 9, 2, Q("41.779929 mm")))
sketch2.addConstraint(Sketcher.Constraint("DistanceY", 11, 2, 11, 1, Q("34.616241 mm")))
sketch2.addConstraint(Sketcher.Constraint("DistanceY", 19, 1, 19, 2, Q("128.426091 mm")))
sketch2.addConstraint(Sketcher.Constraint("DistanceY", 21, 1, 21, 2, Q("38.544578 mm")))
sketch2.addConstraint(Sketcher.Constraint("DistanceY", 27, 1, 27, 2, Q("72.098729 mm")))
sketch2.addConstraint(Sketcher.Constraint("DistanceY", 29, 2, 29, 1, Q("2.306491 mm")))
sketch2.addConstraint(Sketcher.Constraint("DistanceY", 39, 2, 39, 1, Q("37.275582 mm")))
sketch2.addConstraint(Sketcher.Constraint("DistanceY", 45, 1, 45, 2, Q("16.055988 mm")))
sketch2.addConstraint(Sketcher.Constraint("DistanceY", 60, 2, 60, 1, Q("27.406519 mm")))
sketch2.addConstraint(Sketcher.Constraint("DistanceY", 80, 2, 80, 1, Q("31.230641 mm")))
sketch2.addConstraint(Sketcher.Constraint("DistanceY", 35, 2, -1, 1, Q("147.0032 mm")))
sketch2.addConstraint(Sketcher.Constraint("DistanceX", 2, 1, 2, 2, Q("48.383527 mm")))
sketch2.addConstraint(Sketcher.Constraint("DistanceX", 4, 2, 4, 1, Q("53.279648 mm")))
sketch2.addConstraint(Sketcher.Constraint("DistanceX", 6, 1, 6, 2, Q("47.321607 mm")))
sketch2.addConstraint(Sketcher.Constraint("DistanceX", 8, 2, 8, 1, Q("2.349518 mm")))
sketch2.addConstraint(Sketcher.Constraint("DistanceX", 10, 2, 10, 1, Q("41.225563 mm")))
sketch2.addConstraint(Sketcher.Constraint("DistanceX", 12, 1, 12, 2, Q("20.380775 mm")))
sketch2.addConstraint(Sketcher.Constraint("DistanceX", 16, 1, 16, 2, Q("53.073754 mm")))
sketch2.addConstraint(Sketcher.Constraint("DistanceX", 18, 1, 18, 2, Q("52.534593 mm")))
sketch2.addConstraint(Sketcher.Constraint("DistanceX", 20, 2, 20, 1, Q("22.114203 mm")))
sketch2.addConstraint(Sketcher.Constraint("DistanceX", 24, 1, 24, 2, Q("23.448284 mm")))
sketch2.addConstraint(Sketcher.Constraint("DistanceX", 28, 1, 28, 2, Q("59.842995 mm")))
sketch2.addConstraint(Sketcher.Constraint("DistanceX", 32, 1, 32, 2, Q("62.605356 mm")))
sketch2.addConstraint(Sketcher.Constraint("DistanceX", 51, 2, 51, 1, Q("5.898706 mm")))
sketch2.addConstraint(Sketcher.Constraint("DistanceX", 53, 2, 53, 1, Q("39.622572 mm")))
sketch2.addConstraint(Sketcher.Constraint("DistanceX", 55, 2, 55, 1, Q("16.133108 mm")))
sketch2.addConstraint(Sketcher.Constraint("DistanceX", 57, 2, 57, 1, Q("202.798224 mm")))
sketch2.addConstraint(Sketcher.Constraint("DistanceX", 59, 1, 59, 2, Q("31.444198 mm")))
sketch2.addConstraint(Sketcher.Constraint("DistanceX", 61, 2, 61, 1, Q("3.701953 mm")))
sketch2.addConstraint(Sketcher.Constraint("DistanceX", 63, 2, 63, 1, Q("31.311165 mm")))
sketch2.addConstraint(Sketcher.Constraint("DistanceX", 65, 2, 65, 1, Q("27.780724 mm")))
sketch2.addConstraint(Sketcher.Constraint("DistanceX", 71, 1, 71, 2, Q("94.623076 mm")))
sketch2.addConstraint(Sketcher.Constraint("DistanceX", 73, 2, 73, 1, Q("97.995248 mm")))
sketch2.addConstraint(Sketcher.Constraint("DistanceX", 77, 2, 77, 1, Q("57.540737 mm")))
sketch2.addConstraint(Sketcher.Constraint("DistanceY", 1, 1, 1, 2, Q("43.004186 mm")))
sketch2.addConstraint(Sketcher.Constraint("DistanceY", 3, 1, 3, 2, Q("108.281343 mm")))
sketch2.addConstraint(Sketcher.Constraint("DistanceY", 7, 2, 7, 1, Q("45.385336 mm")))
sketch2.addConstraint(Sketcher.Constraint("DistanceY", 13, 2, 13, 1, Q("2.116808 mm")))
sketch2.addConstraint(Sketcher.Constraint("DistanceY", 15, 2, 15, 1, Q("25.635433 mm")))
sketch2.addConstraint(Sketcher.Constraint("DistanceY", 23, 2, 23, 1, Q("35.347254 mm")))
sketch2.addConstraint(Sketcher.Constraint("DistanceY", 25, 2, 25, 1, Q("216.320867 mm")))
sketch2.addConstraint(Sketcher.Constraint("DistanceY", 31, 2, 31, 1, Q("25.443076 mm")))
sketch2.addConstraint(Sketcher.Constraint("DistanceY", 46, 2, 46, 1, Q("97.568694 mm")))
sketch2.addConstraint(Sketcher.Constraint("DistanceY", 52, 1, 52, 2, Q("241.584402 mm")))
sketch2.addConstraint(Sketcher.Constraint("DistanceY", 54, 1, 54, 2, Q("28.381227 mm")))
sketch2.addConstraint(Sketcher.Constraint("DistanceY", 56, 1, 56, 2, Q("25.979657 mm")))
sketch2.addConstraint(Sketcher.Constraint("DistanceY", 58, 2, 58, 1, Q("98.247804 mm")))
sketch2.addConstraint(Sketcher.Constraint("DistanceY", 62, 1, 62, 2, Q("23.323565 mm")))
sketch2.addConstraint(Sketcher.Constraint("DistanceY", 64, 1, 64, 2, Q("67.560158 mm")))
sketch2.addConstraint(Sketcher.Constraint("DistanceY", 66, 2, 66, 1, Q("161.115176 mm")))
sketch2.addConstraint(Sketcher.Constraint("DistanceY", 68, 1, 68, 2, Q("16.689827 mm")))
sketch2.addConstraint(Sketcher.Constraint("DistanceY", 70, 1, 70, 2, Q("3.157226 mm")))
sketch2.addConstraint(Sketcher.Constraint("DistanceY", 72, 1, 72, 2, Q("17.311073 mm")))
sketch2.addConstraint(Sketcher.Constraint("DistanceY", 74, 1, 74, 2, Q("3.017632 mm")))
sketch2.addConstraint(Sketcher.Constraint("DistanceY", 76, 1, 76, 2, Q("21.544594 mm")))
sketch2.addConstraint(Sketcher.Constraint("DistanceY", 82, 1, 82, 2, Q("34.223232 mm")))
sketch2.addConstraint(Sketcher.Constraint("DistanceX", 10, 2, -1, 1, Q("10.423439 mm")))
sketch2.setExpression("Constraints[193]", "Params.sketch2_width")
pad2 = body.newObject("PartDesign::Pad", "Pad001")
pad2.Profile = sketch2
pad2.setExpression("Length", "Params.pad2_length")
pad2.Reversed = True

doc.recompute()
